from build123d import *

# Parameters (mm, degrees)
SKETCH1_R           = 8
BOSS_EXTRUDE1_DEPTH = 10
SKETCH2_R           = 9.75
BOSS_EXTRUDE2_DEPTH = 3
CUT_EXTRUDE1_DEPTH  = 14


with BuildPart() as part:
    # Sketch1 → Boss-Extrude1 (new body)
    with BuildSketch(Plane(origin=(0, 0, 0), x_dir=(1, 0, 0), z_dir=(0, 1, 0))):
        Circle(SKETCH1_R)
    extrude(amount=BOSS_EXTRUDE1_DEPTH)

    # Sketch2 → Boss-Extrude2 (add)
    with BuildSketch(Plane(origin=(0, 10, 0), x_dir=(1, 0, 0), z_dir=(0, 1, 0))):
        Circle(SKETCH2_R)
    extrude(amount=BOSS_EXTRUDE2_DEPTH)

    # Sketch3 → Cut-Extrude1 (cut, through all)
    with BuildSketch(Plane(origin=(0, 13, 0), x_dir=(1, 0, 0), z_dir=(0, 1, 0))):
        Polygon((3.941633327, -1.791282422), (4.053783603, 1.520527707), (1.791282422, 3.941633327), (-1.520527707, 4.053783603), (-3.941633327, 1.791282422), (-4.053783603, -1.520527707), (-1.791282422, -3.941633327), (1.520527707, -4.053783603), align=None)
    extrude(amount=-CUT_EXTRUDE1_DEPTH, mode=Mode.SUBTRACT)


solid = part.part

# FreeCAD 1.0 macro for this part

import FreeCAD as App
import Part
import Sketcher

V = App.Vector

doc = App.newDocument("Part")
body = doc.addObject("PartDesign::Body", "Body")

# Sketch on XZ plane
sketch1 = body.newObject("Sketcher::SketchObject", "Sketch")
sketch1.AttachmentSupport = (doc.getObject("XZ_Plane"), [""])
sketch1.MapMode = "FlatFace"
sketch1.addGeometry(Part.Circle(V(0, 0, 0), V(0, 0, 1), 8), False)
sketch1.addConstraint(Sketcher.Constraint("Coincident", 0, 3, -1, 1))
sketch1.addConstraint(Sketcher.Constraint("Diameter", 0, 16.0))
pad1 = body.newObject("PartDesign::Pad", "Pad")
pad1.Profile = sketch1
pad1.Length = 10
pad1.Reversed = True

# Sketch on XZ plane
sketch2 = body.newObject("Sketcher::SketchObject", "Sketch001")
sketch2.AttachmentSupport = (doc.getObject("XZ_Plane"), [""])
sketch2.MapMode = "FlatFace"
sketch2.AttachmentOffset = App.Placement(V(0, 0, -10), App.Rotation())
sketch2.addGeometry(Part.Circle(V(0, 0, 0), V(0, 0, 1), 10), False)
sketch2.addConstraint(Sketcher.Constraint("Coincident", 0, 3, -1, 1))
sketch2.addConstraint(Sketcher.Constraint("Diameter", 0, 19.5))
pad2 = body.newObject("PartDesign::Pad", "Pad001")
pad2.Profile = sketch2
pad2.Length = 3
pad2.Reversed = True

# Sketch on XZ plane
sketch3 = body.newObject("Sketcher::SketchObject", "Sketch002")
sketch3.AttachmentSupport = (doc.getObject("XZ_Plane"), [""])
sketch3.MapMode = "FlatFace"
sketch3.AttachmentOffset = App.Placement(V(0, 0, -13), App.Rotation())
sketch3.addGeometry(Part.LineSegment(V(3.9, 1.8, 0), V(4.1, -1.5, 0)), False)
sketch3.addGeometry(Part.LineSegment(V(4.1, -1.5, 0), V(1.8, -3.9, 0)), False)
sketch3.addGeometry(Part.LineSegment(V(1.8, -3.9, 0), V(-1.5, -4.1, 0)), False)
sketch3.addGeometry(Part.LineSegment(V(-1.5, -4.1, 0), V(-3.9, -1.8, 0)), False)
sketch3.addGeometry(Part.LineSegment(V(-3.9, -1.8, 0), V(-4.1, 1.5, 0)), False)
sketch3.addGeometry(Part.LineSegment(V(-4.1, 1.5, 0), V(-1.8, 3.9, 0)), False)
sketch3.addGeometry(Part.LineSegment(V(-1.8, 3.9, 0), V(1.5, 4.1, 0)), False)
sketch3.addGeometry(Part.LineSegment(V(1.5, 4.1, 0), V(3.9, 1.8, 0)), False)
sketch3.addConstraint(Sketcher.Constraint("Coincident", 0, 2, 1, 1))
sketch3.addConstraint(Sketcher.Constraint("Coincident", 1, 2, 2, 1))
sketch3.addConstraint(Sketcher.Constraint("Coincident", 2, 2, 3, 1))
sketch3.addConstraint(Sketcher.Constraint("Coincident", 3, 2, 4, 1))
sketch3.addConstraint(Sketcher.Constraint("Coincident", 4, 2, 5, 1))
sketch3.addConstraint(Sketcher.Constraint("Coincident", 5, 2, 6, 1))
sketch3.addConstraint(Sketcher.Constraint("Coincident", 6, 2, 7, 1))
sketch3.addConstraint(Sketcher.Constraint("Coincident", 7, 2, 0, 1))
sketch3.addConstraint(Sketcher.Constraint("Symmetric", 0, 2, 4, 2, -1, 1))
sketch3.addConstraint(Sketcher.Constraint("Symmetric", 1, 2, 5, 2, -1, 1))
sketch3.addConstraint(Sketcher.Constraint("Symmetric", 2, 2, 6, 2, -1, 1))
sketch3.addConstraint(Sketcher.Constraint("Symmetric", 3, 2, 7, 2, -1, 1))
sketch3.addConstraint(Sketcher.Constraint("Perpendicular", 0, 2))
sketch3.addConstraint(Sketcher.Constraint("Perpendicular", 1, 3))
sketch3.addConstraint(Sketcher.Constraint("Equal", 0, 1))
sketch3.addConstraint(Sketcher.Constraint("Equal", 1, 2))
sketch3.addConstraint(Sketcher.Constraint("Equal", 2, 3))
sketch3.addConstraint(Sketcher.Constraint("DistanceX", 1, 2, 0, 2, 2.262501))
sketch3.addConstraint(Sketcher.Constraint("Distance", 0, 3.313708))
sketch3.addConstraint(Sketcher.Constraint("DistanceX", 2, 2, 1, 2, 3.31181))
pocket1 = body.newObject("PartDesign::Pocket", "Pocket")
pocket1.Profile = sketch3
pocket1.Type = "ThroughAll"
pocket1.Reversed = True

doc.recompute()
